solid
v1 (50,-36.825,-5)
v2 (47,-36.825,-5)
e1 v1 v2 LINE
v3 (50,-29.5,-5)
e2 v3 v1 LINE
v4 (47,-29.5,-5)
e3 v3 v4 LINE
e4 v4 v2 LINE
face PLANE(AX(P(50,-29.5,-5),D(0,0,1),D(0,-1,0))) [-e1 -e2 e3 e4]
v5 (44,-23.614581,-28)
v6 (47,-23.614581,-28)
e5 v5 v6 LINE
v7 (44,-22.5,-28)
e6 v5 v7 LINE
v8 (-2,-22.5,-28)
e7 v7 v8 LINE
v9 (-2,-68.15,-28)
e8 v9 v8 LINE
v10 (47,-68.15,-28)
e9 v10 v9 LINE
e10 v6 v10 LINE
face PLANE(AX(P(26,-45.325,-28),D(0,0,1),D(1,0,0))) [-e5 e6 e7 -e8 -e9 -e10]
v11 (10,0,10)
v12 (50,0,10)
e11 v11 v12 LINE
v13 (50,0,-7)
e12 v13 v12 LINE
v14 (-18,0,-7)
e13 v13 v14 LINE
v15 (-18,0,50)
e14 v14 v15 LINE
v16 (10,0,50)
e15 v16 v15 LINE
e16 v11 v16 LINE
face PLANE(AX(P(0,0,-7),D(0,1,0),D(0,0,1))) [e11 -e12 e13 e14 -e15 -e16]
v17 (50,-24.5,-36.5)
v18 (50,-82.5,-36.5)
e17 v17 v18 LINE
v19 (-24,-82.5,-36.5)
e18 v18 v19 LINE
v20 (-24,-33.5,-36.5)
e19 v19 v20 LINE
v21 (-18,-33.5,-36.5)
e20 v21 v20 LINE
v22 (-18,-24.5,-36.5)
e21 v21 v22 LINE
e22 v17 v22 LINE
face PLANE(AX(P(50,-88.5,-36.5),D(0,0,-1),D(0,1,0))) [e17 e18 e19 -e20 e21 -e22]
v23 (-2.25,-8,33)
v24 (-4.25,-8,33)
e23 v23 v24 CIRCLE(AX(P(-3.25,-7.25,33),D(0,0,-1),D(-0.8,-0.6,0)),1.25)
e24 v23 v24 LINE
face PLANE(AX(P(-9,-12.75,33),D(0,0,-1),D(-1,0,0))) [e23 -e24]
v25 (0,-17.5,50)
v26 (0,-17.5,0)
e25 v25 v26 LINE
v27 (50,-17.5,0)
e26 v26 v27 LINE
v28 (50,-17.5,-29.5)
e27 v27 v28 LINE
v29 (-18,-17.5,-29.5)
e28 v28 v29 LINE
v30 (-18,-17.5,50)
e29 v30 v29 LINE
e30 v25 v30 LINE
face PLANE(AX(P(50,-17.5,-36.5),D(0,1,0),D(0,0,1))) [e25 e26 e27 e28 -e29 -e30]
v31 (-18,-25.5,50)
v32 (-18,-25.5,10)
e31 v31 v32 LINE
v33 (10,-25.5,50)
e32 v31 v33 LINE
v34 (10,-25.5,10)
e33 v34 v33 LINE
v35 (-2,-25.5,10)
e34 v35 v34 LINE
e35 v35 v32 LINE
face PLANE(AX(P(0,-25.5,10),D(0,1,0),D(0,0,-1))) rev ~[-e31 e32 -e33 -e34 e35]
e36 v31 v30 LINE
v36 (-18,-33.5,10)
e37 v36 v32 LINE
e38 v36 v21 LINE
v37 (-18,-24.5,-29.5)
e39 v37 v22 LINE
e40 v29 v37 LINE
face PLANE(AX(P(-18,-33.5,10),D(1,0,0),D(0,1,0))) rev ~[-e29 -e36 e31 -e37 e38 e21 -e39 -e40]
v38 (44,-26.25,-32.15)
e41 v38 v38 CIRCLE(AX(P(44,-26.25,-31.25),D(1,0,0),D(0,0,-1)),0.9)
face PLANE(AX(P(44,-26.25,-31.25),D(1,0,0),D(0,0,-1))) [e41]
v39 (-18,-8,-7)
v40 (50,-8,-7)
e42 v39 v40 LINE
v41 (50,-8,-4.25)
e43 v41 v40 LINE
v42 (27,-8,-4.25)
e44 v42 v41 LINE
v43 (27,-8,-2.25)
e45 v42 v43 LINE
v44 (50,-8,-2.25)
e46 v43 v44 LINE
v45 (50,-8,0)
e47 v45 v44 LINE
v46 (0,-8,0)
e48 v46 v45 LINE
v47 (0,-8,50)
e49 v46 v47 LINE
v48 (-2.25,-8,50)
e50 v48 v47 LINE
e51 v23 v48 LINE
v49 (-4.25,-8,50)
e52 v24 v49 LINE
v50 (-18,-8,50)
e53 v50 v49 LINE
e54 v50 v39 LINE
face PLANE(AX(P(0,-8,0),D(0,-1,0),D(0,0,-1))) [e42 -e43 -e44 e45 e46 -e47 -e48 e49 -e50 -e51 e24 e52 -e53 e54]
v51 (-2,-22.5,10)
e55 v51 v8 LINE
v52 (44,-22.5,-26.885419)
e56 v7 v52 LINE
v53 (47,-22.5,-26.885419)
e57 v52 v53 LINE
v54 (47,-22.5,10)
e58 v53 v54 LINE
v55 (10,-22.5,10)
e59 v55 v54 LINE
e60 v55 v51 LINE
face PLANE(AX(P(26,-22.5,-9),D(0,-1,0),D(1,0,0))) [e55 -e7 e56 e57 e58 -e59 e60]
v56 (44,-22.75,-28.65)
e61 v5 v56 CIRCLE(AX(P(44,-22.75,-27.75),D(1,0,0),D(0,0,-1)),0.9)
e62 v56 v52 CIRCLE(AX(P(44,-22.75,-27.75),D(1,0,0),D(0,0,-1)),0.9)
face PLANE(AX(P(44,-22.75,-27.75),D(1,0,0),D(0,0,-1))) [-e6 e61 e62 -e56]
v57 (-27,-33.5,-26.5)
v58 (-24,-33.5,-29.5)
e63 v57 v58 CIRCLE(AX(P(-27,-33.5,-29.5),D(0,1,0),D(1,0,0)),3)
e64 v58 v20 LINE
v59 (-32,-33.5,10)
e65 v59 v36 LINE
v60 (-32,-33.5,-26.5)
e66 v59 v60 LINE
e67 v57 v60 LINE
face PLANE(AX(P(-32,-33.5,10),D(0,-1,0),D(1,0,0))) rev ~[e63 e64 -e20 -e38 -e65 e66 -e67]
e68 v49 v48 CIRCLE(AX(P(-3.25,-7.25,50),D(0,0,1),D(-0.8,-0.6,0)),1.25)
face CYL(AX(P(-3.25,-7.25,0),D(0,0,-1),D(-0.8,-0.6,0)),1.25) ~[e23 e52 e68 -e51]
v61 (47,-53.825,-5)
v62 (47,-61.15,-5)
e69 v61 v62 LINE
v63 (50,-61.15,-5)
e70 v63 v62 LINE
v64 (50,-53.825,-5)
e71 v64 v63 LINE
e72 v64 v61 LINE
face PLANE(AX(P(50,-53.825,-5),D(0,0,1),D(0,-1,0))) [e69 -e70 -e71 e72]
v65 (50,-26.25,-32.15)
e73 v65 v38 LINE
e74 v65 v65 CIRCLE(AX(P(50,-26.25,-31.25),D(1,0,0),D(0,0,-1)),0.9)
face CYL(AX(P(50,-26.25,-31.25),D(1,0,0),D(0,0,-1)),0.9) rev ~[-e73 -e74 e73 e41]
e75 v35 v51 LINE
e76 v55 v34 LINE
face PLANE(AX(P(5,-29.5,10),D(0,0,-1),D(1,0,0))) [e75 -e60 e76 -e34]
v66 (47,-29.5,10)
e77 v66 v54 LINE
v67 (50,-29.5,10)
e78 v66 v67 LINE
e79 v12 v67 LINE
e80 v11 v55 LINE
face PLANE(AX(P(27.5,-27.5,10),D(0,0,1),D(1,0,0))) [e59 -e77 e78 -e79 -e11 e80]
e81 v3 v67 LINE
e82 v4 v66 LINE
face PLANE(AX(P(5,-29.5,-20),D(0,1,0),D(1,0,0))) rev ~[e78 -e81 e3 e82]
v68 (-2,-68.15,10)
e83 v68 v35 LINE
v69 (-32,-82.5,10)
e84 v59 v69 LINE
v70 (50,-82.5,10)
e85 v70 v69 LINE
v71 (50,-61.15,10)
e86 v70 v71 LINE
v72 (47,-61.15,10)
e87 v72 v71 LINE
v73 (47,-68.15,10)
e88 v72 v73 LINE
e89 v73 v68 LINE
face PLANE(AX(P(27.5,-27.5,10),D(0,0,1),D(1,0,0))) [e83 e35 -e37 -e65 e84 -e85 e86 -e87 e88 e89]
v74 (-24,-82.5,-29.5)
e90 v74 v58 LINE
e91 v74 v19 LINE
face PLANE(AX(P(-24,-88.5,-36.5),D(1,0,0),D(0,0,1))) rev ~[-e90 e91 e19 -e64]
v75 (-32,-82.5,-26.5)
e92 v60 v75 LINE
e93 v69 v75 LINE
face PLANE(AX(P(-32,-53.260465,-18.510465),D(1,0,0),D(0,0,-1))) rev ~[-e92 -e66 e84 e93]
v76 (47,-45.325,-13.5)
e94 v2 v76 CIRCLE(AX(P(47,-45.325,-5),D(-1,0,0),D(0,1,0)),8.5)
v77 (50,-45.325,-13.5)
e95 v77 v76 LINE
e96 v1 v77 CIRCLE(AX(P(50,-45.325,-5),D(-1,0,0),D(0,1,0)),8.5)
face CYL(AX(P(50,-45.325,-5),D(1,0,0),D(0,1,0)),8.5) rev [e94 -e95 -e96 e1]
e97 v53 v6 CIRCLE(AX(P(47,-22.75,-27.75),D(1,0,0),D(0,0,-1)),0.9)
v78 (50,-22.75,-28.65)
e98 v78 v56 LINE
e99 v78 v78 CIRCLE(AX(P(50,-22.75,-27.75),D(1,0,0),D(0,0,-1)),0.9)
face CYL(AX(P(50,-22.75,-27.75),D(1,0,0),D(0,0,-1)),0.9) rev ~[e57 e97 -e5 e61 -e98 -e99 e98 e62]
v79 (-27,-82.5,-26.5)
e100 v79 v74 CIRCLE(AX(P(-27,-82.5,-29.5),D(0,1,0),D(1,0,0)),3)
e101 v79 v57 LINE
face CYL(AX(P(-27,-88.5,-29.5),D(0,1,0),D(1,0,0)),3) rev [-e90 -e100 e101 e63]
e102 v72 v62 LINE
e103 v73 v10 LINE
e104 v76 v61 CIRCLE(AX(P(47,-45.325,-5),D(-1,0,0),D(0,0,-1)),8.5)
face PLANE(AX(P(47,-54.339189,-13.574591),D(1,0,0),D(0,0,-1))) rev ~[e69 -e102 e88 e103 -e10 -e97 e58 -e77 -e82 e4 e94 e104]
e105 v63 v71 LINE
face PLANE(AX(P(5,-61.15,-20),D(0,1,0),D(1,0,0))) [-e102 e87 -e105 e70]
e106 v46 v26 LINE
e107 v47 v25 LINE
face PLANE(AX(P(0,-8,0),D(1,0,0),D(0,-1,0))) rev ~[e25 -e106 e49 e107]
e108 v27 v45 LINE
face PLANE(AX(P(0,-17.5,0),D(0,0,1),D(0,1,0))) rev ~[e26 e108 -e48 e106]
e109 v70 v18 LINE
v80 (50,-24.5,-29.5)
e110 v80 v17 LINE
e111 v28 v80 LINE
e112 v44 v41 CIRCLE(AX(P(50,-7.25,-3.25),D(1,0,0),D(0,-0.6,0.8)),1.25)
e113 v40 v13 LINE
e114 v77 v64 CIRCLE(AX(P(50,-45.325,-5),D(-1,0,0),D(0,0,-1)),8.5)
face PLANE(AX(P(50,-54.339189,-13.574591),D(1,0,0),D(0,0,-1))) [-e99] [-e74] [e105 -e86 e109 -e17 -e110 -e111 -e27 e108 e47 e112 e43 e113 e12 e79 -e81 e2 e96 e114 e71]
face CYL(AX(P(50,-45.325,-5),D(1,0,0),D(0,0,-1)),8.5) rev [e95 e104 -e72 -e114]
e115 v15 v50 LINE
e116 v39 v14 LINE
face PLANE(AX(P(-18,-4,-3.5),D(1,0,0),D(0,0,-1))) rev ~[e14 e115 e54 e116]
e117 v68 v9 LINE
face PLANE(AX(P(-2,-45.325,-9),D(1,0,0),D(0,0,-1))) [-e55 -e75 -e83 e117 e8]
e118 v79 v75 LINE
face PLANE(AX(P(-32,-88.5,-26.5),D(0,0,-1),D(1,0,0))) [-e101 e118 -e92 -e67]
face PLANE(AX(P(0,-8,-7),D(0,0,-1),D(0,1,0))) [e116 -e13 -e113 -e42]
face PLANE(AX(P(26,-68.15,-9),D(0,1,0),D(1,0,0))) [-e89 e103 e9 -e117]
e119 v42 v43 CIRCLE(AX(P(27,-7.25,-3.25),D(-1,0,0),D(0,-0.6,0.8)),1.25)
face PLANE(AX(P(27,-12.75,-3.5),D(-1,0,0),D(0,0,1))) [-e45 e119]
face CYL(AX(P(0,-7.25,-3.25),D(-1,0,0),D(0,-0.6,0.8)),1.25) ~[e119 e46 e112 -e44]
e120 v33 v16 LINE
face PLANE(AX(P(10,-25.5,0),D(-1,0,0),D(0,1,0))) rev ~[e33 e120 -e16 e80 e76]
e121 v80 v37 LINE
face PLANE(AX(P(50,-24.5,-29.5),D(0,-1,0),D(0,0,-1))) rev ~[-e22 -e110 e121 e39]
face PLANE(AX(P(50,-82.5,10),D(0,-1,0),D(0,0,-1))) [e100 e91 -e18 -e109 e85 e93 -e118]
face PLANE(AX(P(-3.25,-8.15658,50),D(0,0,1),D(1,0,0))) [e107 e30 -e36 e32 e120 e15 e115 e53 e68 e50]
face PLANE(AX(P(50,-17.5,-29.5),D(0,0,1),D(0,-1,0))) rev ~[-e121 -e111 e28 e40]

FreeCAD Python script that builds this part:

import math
import FreeCAD as App
import Part
import Sketcher

V = App.Vector


def edges_at(feature, points):
    """Names of the edges that pass closest to the given points."""
    edges = feature.Shape.Edges
    near = lambda p: min(range(len(edges)), key=lambda i: edges[i].distToShape(Part.Vertex(*p))[0])
    return sorted({f"Edge{near(p) + 1}" for p in points})


def add_polygon(sketch, points):
    """Adds a closed chain of lines whose ends are joined by coincident constraints."""
    first, n = sketch.GeometryCount, len(points)
    for a, b in zip(points, points[1:] + points[:1]):
        sketch.addGeometry(Part.LineSegment(App.Vector(*a, 0), App.Vector(*b, 0)), False)
    for i in range(n):
        sketch.addConstraint(Sketcher.Constraint("Coincident", first + i, 2, first + (i + 1) % n, 1))

doc = App.newDocument("Part")
body = doc.addObject("PartDesign::Body", "Body")

# Sketch on XY plane
sketch1 = body.newObject("Sketcher::SketchObject", "Sketch")
sketch1.AttachmentSupport = (doc.getObject("XY_Plane"), [""])
sketch1.MapMode = "FlatFace"
sketch1.addGeometry(Part.ArcOfCircle(Part.Circle(V(-3.2, -7.2, 0), V(0, 0, 1), 1.2), math.radians(-143), math.radians(-37)), False)
sketch1.addGeometry(Part.LineSegment(V(-2.2, -8, 0), V(0, -8, 0)), False)
sketch1.addGeometry(Part.LineSegment(V(0, -8, 0), V(0, -17.5, 0)), False)
sketch1.addGeometry(Part.LineSegment(V(0, -17.5, 0), V(-18, -17.5, 0)), False)
sketch1.addGeometry(Part.LineSegment(V(-18, -17.5, 0), V(-18, -25.5, 0)), False)
sketch1.addGeometry(Part.LineSegment(V(-18, -25.5, 0), V(10, -25.5, 0)), False)
sketch1.addGeometry(Part.LineSegment(V(10, -25.5, 0), V(10, 0, 0)), False)
sketch1.addGeometry(Part.LineSegment(V(10, 0, 0), V(-18, 0, 0)), False)
sketch1.addGeometry(Part.LineSegment(V(-18, 0, 0), V(-18, -8, 0)), False)
sketch1.addGeometry(Part.LineSegment(V(-18, -8, 0), V(-4.2, -8, 0)), False)
sketch1.addConstraint(Sketcher.Constraint("Coincident", 0, 2, 1, 1))
sketch1.addConstraint(Sketcher.Constraint("Coincident", 1, 2, 2, 1))
sketch1.addConstraint(Sketcher.Constraint("Coincident", 2, 2, 3, 1))
sketch1.addConstraint(Sketcher.Constraint("Coincident", 3, 2, 4, 1))
sketch1.addConstraint(Sketcher.Constraint("Coincident", 4, 2, 5, 1))
sketch1.addConstraint(Sketcher.Constraint("Coincident", 5, 2, 6, 1))
sketch1.addConstraint(Sketcher.Constraint("Coincident", 6, 2, 7, 1))
sketch1.addConstraint(Sketcher.Constraint("Coincident", 7, 2, 8, 1))
sketch1.addConstraint(Sketcher.Constraint("Coincident", 8, 2, 9, 1))
sketch1.addConstraint(Sketcher.Constraint("Coincident", 9, 2, 0, 1))
sketch1.addConstraint(Sketcher.Constraint("Horizontal", 1))
sketch1.addConstraint(Sketcher.Constraint("Vertical", 2))
sketch1.addConstraint(Sketcher.Constraint("Horizontal", 3))
sketch1.addConstraint(Sketcher.Constraint("Vertical", 4))
sketch1.addConstraint(Sketcher.Constraint("Horizontal", 5))
sketch1.addConstraint(Sketcher.Constraint("Vertical", 6))
sketch1.addConstraint(Sketcher.Constraint("Horizontal", 7))
sketch1.addConstraint(Sketcher.Constraint("Vertical", 8))
sketch1.addConstraint(Sketcher.Constraint("Horizontal", 9))
sketch1.addConstraint(Sketcher.Constraint("PointOnObject", 1, 2, -2))
sketch1.addConstraint(Sketcher.Constraint("PointOnObject", 6, 2, -1))
sketch1.addConstraint(Sketcher.Constraint("Horizontal", 1, 2, 8, 2))
sketch1.addConstraint(Sketcher.Constraint("Vertical", 4, 2, 7, 2))
sketch1.addConstraint(Sketcher.Constraint("Equal", 4, 8))
sketch1.addConstraint(Sketcher.Constraint("DistanceX", 3, 2, 3, 1, 18.0))
sketch1.addConstraint(Sketcher.Constraint("DistanceX", 5, 1, 5, 2, 28.0))
sketch1.addConstraint(Sketcher.Constraint("DistanceY", 4, 2, 4, 1, 8.0))
sketch1.addConstraint(Sketcher.Constraint("Radius", 0, 1.25))
sketch1.addConstraint(Sketcher.Constraint("DistanceY", 2, 2, 2, 1, 9.5))
sketch1.addConstraint(Sketcher.Constraint("DistanceX", 0, 3, 0, 2, 1.0))
sketch1.addConstraint(Sketcher.Constraint("DistanceX", 1, 1, 1, 2, 2.25))
pad1 = body.newObject("PartDesign::Pad", "Pad")
pad1.Profile = sketch1
pad1.Length = 50

# Sketch on YZ plane
sketch2 = body.newObject("Sketcher::SketchObject", "Sketch001")
sketch2.AttachmentSupport = (doc.getObject("YZ_Plane"), [""])
sketch2.MapMode = "FlatFace"
sketch2.addGeometry(Part.LineSegment(V(0, -7, 0), V(0, 10, 0)), False)
sketch2.addGeometry(Part.LineSegment(V(0, 10, 0), V(-25.5, 10, 0)), False)
sketch2.addGeometry(Part.LineSegment(V(-25.5, 10, 0), V(-25.5, -7, 0)), False)
sketch2.addGeometry(Part.LineSegment(V(-25.5, -7, 0), V(-17.5, -7, 0)), False)
sketch2.addGeometry(Part.LineSegment(V(-17.5, -7, 0), V(-17.5, 0, 0)), False)
sketch2.addGeometry(Part.LineSegment(V(-17.5, 0, 0), V(-8, 0, 0)), False)
sketch2.addGeometry(Part.LineSegment(V(-8, 0, 0), V(-8, -2.2, 0)), False)
sketch2.addGeometry(Part.ArcOfCircle(Part.Circle(V(-7.2, -3.2, 0), V(0, 0, 1), 1.2), math.radians(127), math.radians(233)), False)
sketch2.addGeometry(Part.LineSegment(V(-8, -4.2, 0), V(-8, -7, 0)), False)
sketch2.addGeometry(Part.LineSegment(V(-8, -7, 0), V(0, -7, 0)), False)
sketch2.addConstraint(Sketcher.Constraint("Coincident", 0, 2, 1, 1))
sketch2.addConstraint(Sketcher.Constraint("Coincident", 1, 2, 2, 1))
sketch2.addConstraint(Sketcher.Constraint("Coincident", 2, 2, 3, 1))
sketch2.addConstraint(Sketcher.Constraint("Coincident", 3, 2, 4, 1))
sketch2.addConstraint(Sketcher.Constraint("Coincident", 4, 2, 5, 1))
sketch2.addConstraint(Sketcher.Constraint("Coincident", 5, 2, 6, 1))
sketch2.addConstraint(Sketcher.Constraint("Coincident", 6, 2, 7, 1))
sketch2.addConstraint(Sketcher.Constraint("Coincident", 7, 2, 8, 1))
sketch2.addConstraint(Sketcher.Constraint("Coincident", 8, 2, 9, 1))
sketch2.addConstraint(Sketcher.Constraint("Coincident", 9, 2, 0, 1))
sketch2.addConstraint(Sketcher.Constraint("Vertical", 0))
sketch2.addConstraint(Sketcher.Constraint("Horizontal", 1))
sketch2.addConstraint(Sketcher.Constraint("Vertical", 2))
sketch2.addConstraint(Sketcher.Constraint("Horizontal", 3))
sketch2.addConstraint(Sketcher.Constraint("Vertical", 4))
sketch2.addConstraint(Sketcher.Constraint("Horizontal", 5))
sketch2.addConstraint(Sketcher.Constraint("Vertical", 6))
sketch2.addConstraint(Sketcher.Constraint("Vertical", 8))
sketch2.addConstraint(Sketcher.Constraint("Horizontal", 9))
sketch2.addConstraint(Sketcher.Constraint("PointOnObject", 0, 2, -2))
sketch2.addConstraint(Sketcher.Constraint("PointOnObject", 4, 2, -1))
sketch2.addConstraint(Sketcher.Constraint("Horizontal", 3, 2, 8, 2))
sketch2.addConstraint(Sketcher.Constraint("Vertical", 6, 2, 7, 2))
sketch2.addConstraint(Sketcher.Constraint("Equal", 3, 9))
sketch2.addConstraint(Sketcher.Constraint("DistanceX", 3, 1, 3, 2, 8.0))
sketch2.addConstraint(Sketcher.Constraint("DistanceY", 0, 1, 0, 2, 17.0))
sketch2.addConstraint(Sketcher.Constraint("DistanceY", 4, 1, 4, 2, 7.0))
sketch2.addConstraint(Sketcher.Constraint("Radius", 7, 1.25))
sketch2.addConstraint(Sketcher.Constraint("DistanceX", 1, 2, 1, 1, 25.5))
sketch2.addConstraint(Sketcher.Constraint("DistanceY", 7, 3, 6, 2, 1.0))
sketch2.addConstraint(Sketcher.Constraint("DistanceY", 6, 2, 6, 1, 2.25))
pad2 = body.newObject("PartDesign::Pad", "Pad001")
pad2.Profile = sketch2
pad2.Length = 50

# Sketch on YZ plane
sketch3 = body.newObject("Sketcher::SketchObject", "Sketch002")
sketch3.AttachmentSupport = (doc.getObject("YZ_Plane"), [""])
sketch3.MapMode = "FlatFace"
add_polygon(sketch3, [(0, -7), (0, 0), (-8, 0), (-8, -7)])  # lines 0-3
add_polygon(sketch3, [(-18, 0), (-26, 0), (-26, -7), (-18, -7)])  # lines 4-7
sketch3.addConstraint(Sketcher.Constraint("Vertical", 0))
sketch3.addConstraint(Sketcher.Constraint("Horizontal", 1))
sketch3.addConstraint(Sketcher.Constraint("Vertical", 2))
sketch3.addConstraint(Sketcher.Constraint("Horizontal", 3))
sketch3.addConstraint(Sketcher.Constraint("Horizontal", 4))
sketch3.addConstraint(Sketcher.Constraint("Vertical", 5))
sketch3.addConstraint(Sketcher.Constraint("Horizontal", 6))
sketch3.addConstraint(Sketcher.Constraint("Vertical", 7))
sketch3.addConstraint(Sketcher.Constraint("Coincident", 0, 2, -1, 1))
sketch3.addConstraint(Sketcher.Constraint("PointOnObject", 4, 2, -1))
sketch3.addConstraint(Sketcher.Constraint("Horizontal", 3, 2, 5, 2))
sketch3.addConstraint(Sketcher.Constraint("Equal", 3, 4))
sketch3.addConstraint(Sketcher.Constraint("DistanceX", 1, 2, 1, 1, 8.0))
sketch3.addConstraint(Sketcher.Constraint("DistanceY", 0, 1, 0, 2, 7.0))
sketch3.addConstraint(Sketcher.Constraint("DistanceX", 4, 2, -1, 1, 25.5))
pad3 = body.newObject("PartDesign::Pad", "Pad002")
pad3.Profile = sketch3
pad3.Length = 18
pad3.Reversed = True

# Sketch on YZ plane
sketch4 = body.newObject("Sketcher::SketchObject", "Sketch003")
sketch4.AttachmentSupport = (doc.getObject("YZ_Plane"), [""])
sketch4.MapMode = "FlatFace"
sketch4.AttachmentOffset = App.Placement(V(0, 0, 50), App.Rotation())
add_polygon(sketch4, [(-18, -36), (-18, 10), (-88, 10), (-88, -36)])  # lines 0-3
sketch4.addConstraint(Sketcher.Constraint("Vertical", 0))
sketch4.addConstraint(Sketcher.Constraint("Horizontal", 1))
sketch4.addConstraint(Sketcher.Constraint("Vertical", 2))
sketch4.addConstraint(Sketcher.Constraint("Horizontal", 3))
sketch4.addConstraint(Sketcher.Constraint("DistanceX", 1, 2, 1, 1, 71.0))
sketch4.addConstraint(Sketcher.Constraint("DistanceY", 0, 1, 0, 2, 46.5))
sketch4.addConstraint(Sketcher.Constraint("DistanceY", -1, 1, 0, 2, 10.0))
sketch4.addConstraint(Sketcher.Constraint("DistanceX", 0, 2, -1, 1, 17.5))
pad4 = body.newObject("PartDesign::Pad", "Pad003")
pad4.Profile = sketch4
pad4.Length = 82
pad4.Reversed = True
doc.recompute()

fillet = body.newObject("PartDesign::Fillet", "Fillet")
fillet.Base = (pad4, edges_at(pad4, [(-32, -17.5, -13.25), (-32, -53, -36.5), (9, -17.5, -36.5)]))
fillet.Radius = 5

# Sketch on XZ plane
sketch5 = body.newObject("Sketcher::SketchObject", "Sketch004")
sketch5.AttachmentSupport = (doc.getObject("XZ_Plane"), [""])
sketch5.MapMode = "FlatFace"
sketch5.AttachmentOffset = App.Placement(V(0, 0, 88.5), App.Rotation())
add_polygon(sketch5, [(1, 10), (1, -20), (50, -20), (50, 10)])  # lines 0-3
sketch5.addConstraint(Sketcher.Constraint("Vertical", 0))
sketch5.addConstraint(Sketcher.Constraint("Horizontal", 1))
sketch5.addConstraint(Sketcher.Constraint("Vertical", 2))
sketch5.addConstraint(Sketcher.Constraint("Horizontal", 3))
sketch5.addConstraint(Sketcher.Constraint("DistanceX", 1, 1, 1, 2, 49.0))
sketch5.addConstraint(Sketcher.Constraint("DistanceY", 0, 2, 0, 1, 29.5))
sketch5.addConstraint(Sketcher.Constraint("DistanceX", -1, 1, 0, 2, 1.0))
sketch5.addConstraint(Sketcher.Constraint("DistanceY", -1, 1, 2, 2, 10.0))
pocket1 = body.newObject("PartDesign::Pocket", "Pocket")
pocket1.Profile = sketch5
pocket1.Length = 63

# Sketch on YZ plane
sketch6 = body.newObject("Sketcher::SketchObject", "Sketch005")
sketch6.AttachmentSupport = (doc.getObject("YZ_Plane"), [""])
sketch6.MapMode = "FlatFace"
sketch6.AttachmentOffset = App.Placement(V(0, 0, 50), App.Rotation())
add_polygon(sketch6, [(-26, 10), (-36, 10), (-36, -20), (-26, -20)])  # lines 0-3
add_polygon(sketch6, [(-78, 10), (-88, 10), (-88, -20), (-78, -20)])  # lines 4-7
sketch6.addConstraint(Sketcher.Constraint("Horizontal", 0))
sketch6.addConstraint(Sketcher.Constraint("Vertical", 1))
sketch6.addConstraint(Sketcher.Constraint("Horizontal", 2))
sketch6.addConstraint(Sketcher.Constraint("Vertical", 3))
sketch6.addConstraint(Sketcher.Constraint("Horizontal", 4))
sketch6.addConstraint(Sketcher.Constraint("Vertical", 5))
sketch6.addConstraint(Sketcher.Constraint("Horizontal", 6))
sketch6.addConstraint(Sketcher.Constraint("Vertical", 7))
sketch6.addConstraint(Sketcher.Constraint("Horizontal", 3, 2, 4, 2))
sketch6.addConstraint(Sketcher.Constraint("Horizontal", 2, 2, 5, 2))
sketch6.addConstraint(Sketcher.Constraint("Equal", 2, 4))
sketch6.addConstraint(Sketcher.Constraint("DistanceX", 0, 2, 0, 1, 11.0))
sketch6.addConstraint(Sketcher.Constraint("DistanceY", 1, 2, 1, 1, 29.5))
sketch6.addConstraint(Sketcher.Constraint("DistanceY", -1, 1, 0, 2, 10.0))
sketch6.addConstraint(Sketcher.Constraint("DistanceX", 4, 2, 0, 2, 52.0))
sketch6.addConstraint(Sketcher.Constraint("DistanceX", 0, 2, -1, 1, 36.5))
pad5 = body.newObject("PartDesign::Pad", "Pad004")
pad5.Profile = sketch6
pad5.Length = 49
pad5.Reversed = True

# Sketch on XY plane
sketch7 = body.newObject("Sketcher::SketchObject", "Sketch006")
sketch7.AttachmentSupport = (doc.getObject("XY_Plane"), [""])
sketch7.MapMode = "FlatFace"
sketch7.AttachmentOffset = App.Placement(V(0, 0, 10), App.Rotation())
add_polygon(sketch7, [(27, -36), (1, -36), (1, -78), (27, -78), (27, -88), (50, -88), (50, -26), (27, -26)])  # lines 0-7
sketch7.addConstraint(Sketcher.Constraint("Horizontal", 0))
sketch7.addConstraint(Sketcher.Constraint("Vertical", 1))
sketch7.addConstraint(Sketcher.Constraint("Horizontal", 2))
sketch7.addConstraint(Sketcher.Constraint("Vertical", 3))
sketch7.addConstraint(Sketcher.Constraint("Horizontal", 4))
sketch7.addConstraint(Sketcher.Constraint("Vertical", 5))
sketch7.addConstraint(Sketcher.Constraint("Horizontal", 6))
sketch7.addConstraint(Sketcher.Constraint("Vertical", 7))
sketch7.addConstraint(Sketcher.Constraint("Vertical", 3, 2, 6, 2))
sketch7.addConstraint(Sketcher.Constraint("DistanceX", 0, 2, 0, 1, 26.0))
sketch7.addConstraint(Sketcher.Constraint("DistanceX", 4, 1, 4, 2, 23.0))
sketch7.addConstraint(Sketcher.Constraint("DistanceY", 1, 2, 1, 1, 41.0))
sketch7.addConstraint(Sketcher.Constraint("DistanceY", 3, 2, 3, 1, 11.0))
sketch7.addConstraint(Sketcher.Constraint("DistanceY", 5, 1, 5, 2, 62.0))
sketch7.addConstraint(Sketcher.Constraint("DistanceX", -1, 1, 0, 2, 1.0))
sketch7.addConstraint(Sketcher.Constraint("DistanceY", 0, 2, -1, 1, 36.5))
pocket2 = body.newObject("PartDesign::Pocket", "Pocket001")
pocket2.Profile = sketch7
pocket2.Length = 29.5

# Sketch on YZ plane
sketch8 = body.newObject("Sketcher::SketchObject", "Sketch007")
sketch8.AttachmentSupport = (doc.getObject("YZ_Plane"), [""])
sketch8.MapMode = "FlatFace"
sketch8.AttachmentOffset = App.Placement(V(0, 0, 27), App.Rotation())
sketch8.addGeometry(Part.Circle(V(-81.5, -4.2, 0), V(0, 0, 1), 1.8), False)
sketch8.addGeometry(Part.Circle(V(-81.5, -14.2, 0), V(0, 0, 1), 1.8), False)
sketch8.addGeometry(Part.Circle(V(-32.5, -14.2, 0), V(0, 0, 1), 1.8), False)
sketch8.addGeometry(Part.Circle(V(-32.5, -4.2, 0), V(0, 0, 1), 1.8), False)
sketch8.addConstraint(Sketcher.Constraint("Equal", 0, 1))
sketch8.addConstraint(Sketcher.Constraint("Equal", 1, 2))
sketch8.addConstraint(Sketcher.Constraint("Equal", 2, 3))
sketch8.addConstraint(Sketcher.Constraint("Horizontal", 1, 3, 2, 3))
sketch8.addConstraint(Sketcher.Constraint("Horizontal", 0, 3, 3, 3))
sketch8.addConstraint(Sketcher.Constraint("Vertical", 0, 3, 1, 3))
sketch8.addConstraint(Sketcher.Constraint("Vertical", 2, 3, 3, 3))
sketch8.addConstraint(Sketcher.Constraint("Diameter", 0, 3.5))
sketch8.addConstraint(Sketcher.Constraint("DistanceY", 1, 3, 0, 3, 10.0))
sketch8.addConstraint(Sketcher.Constraint("DistanceX", 1, 3, 2, 3, 49.0))
sketch8.addConstraint(Sketcher.Constraint("DistanceX", 0, 3, -1, 1, 81.5))
sketch8.addConstraint(Sketcher.Constraint("DistanceY", 0, 3, -1, 1, 4.25))
pocket3 = body.newObject("PartDesign::Pocket", "Pocket002")
pocket3.Profile = sketch8
pocket3.Length = 5

# Sketch on YZ plane
sketch9 = body.newObject("Sketcher::SketchObject", "Sketch008")
sketch9.AttachmentSupport = (doc.getObject("YZ_Plane"), [""])
sketch9.MapMode = "FlatFace"
sketch9.AttachmentOffset = App.Placement(V(0, 0, 27), App.Rotation())
sketch9.addGeometry(Part.Circle(V(-81.5, -4.2, 0), V(0, 0, 1), 0.8), False)
sketch9.addGeometry(Part.Circle(V(-81.5, -14.2, 0), V(0, 0, 1), 0.8), False)
sketch9.addGeometry(Part.Circle(V(-32.5, -14.2, 0), V(0, 0, 1), 0.8), False)
sketch9.addGeometry(Part.Circle(V(-32.5, -4.2, 0), V(0, 0, 1), 0.8), False)
sketch9.addConstraint(Sketcher.Constraint("Equal", 0, 1))
sketch9.addConstraint(Sketcher.Constraint("Equal", 1, 2))
sketch9.addConstraint(Sketcher.Constraint("Equal", 2, 3))
sketch9.addConstraint(Sketcher.Constraint("Horizontal", 1, 3, 2, 3))
sketch9.addConstraint(Sketcher.Constraint("Horizontal", 0, 3, 3, 3))
sketch9.addConstraint(Sketcher.Constraint("Vertical", 0, 3, 1, 3))
sketch9.addConstraint(Sketcher.Constraint("Vertical", 2, 3, 3, 3))
sketch9.addConstraint(Sketcher.Constraint("Diameter", 0, 1.5))
sketch9.addConstraint(Sketcher.Constraint("DistanceY", 1, 3, 0, 3, 10.0))
sketch9.addConstraint(Sketcher.Constraint("DistanceX", 1, 3, 2, 3, 49.0))
sketch9.addConstraint(Sketcher.Constraint("DistanceX", 0, 3, -1, 1, 81.5))
sketch9.addConstraint(Sketcher.Constraint("DistanceY", 0, 3, -1, 1, 4.25))
pocket4 = body.newObject("PartDesign::Pocket", "Pocket003")
pocket4.Profile = sketch9
pocket4.Length = 15

# Sketch on XY plane
sketch10 = body.newObject("Sketcher::SketchObject", "Sketch009")
sketch10.AttachmentSupport = (doc.getObject("XY_Plane"), [""])
sketch10.MapMode = "FlatFace"
sketch10.AttachmentOffset = App.Placement(V(0, 0, -7), App.Rotation())
add_polygon(sketch10, [(0, -8), (0, -18), (-18, -18), (-18, -8)])  # lines 0-3
sketch10.addConstraint(Sketcher.Constraint("Vertical", 0))
sketch10.addConstraint(Sketcher.Constraint("Horizontal", 1))
sketch10.addConstraint(Sketcher.Constraint("Vertical", 2))
sketch10.addConstraint(Sketcher.Constraint("Horizontal", 3))
sketch10.addConstraint(Sketcher.Constraint("PointOnObject", 0, 2, -2))
sketch10.addConstraint(Sketcher.Constraint("DistanceX", 1, 2, 1, 1, 18.0))
sketch10.addConstraint(Sketcher.Constraint("DistanceY", 0, 2, 0, 1, 9.5))
sketch10.addConstraint(Sketcher.Constraint("DistanceY", 2, 2, -1, 1, 8.0))
pocket5 = body.newObject("PartDesign::Pocket", "Pocket004")
pocket5.Profile = sketch10
pocket5.Length = 40
pocket5.Reversed = True

# Sketch on YZ plane
sketch11 = body.newObject("Sketcher::SketchObject", "Sketch010")
sketch11.AttachmentSupport = (doc.getObject("YZ_Plane"), [""])
sketch11.MapMode = "FlatFace"
sketch11.AttachmentOffset = App.Placement(V(0, 0, -18), App.Rotation())
add_polygon(sketch11, [(-8, -7), (-18, -7), (-18, 0), (-8, 0)])  # lines 0-3
sketch11.addConstraint(Sketcher.Constraint("Horizontal", 0))
sketch11.addConstraint(Sketcher.Constraint("Vertical", 1))
sketch11.addConstraint(Sketcher.Constraint("Horizontal", 2))
sketch11.addConstraint(Sketcher.Constraint("Vertical", 3))
sketch11.addConstraint(Sketcher.Constraint("PointOnObject", 1, 2, -1))
sketch11.addConstraint(Sketcher.Constraint("DistanceY", 1, 1, 1, 2, 7.0))
sketch11.addConstraint(Sketcher.Constraint("DistanceX", 0, 2, 0, 1, 9.5))
sketch11.addConstraint(Sketcher.Constraint("DistanceX", 2, 2, -1, 1, 8.0))
pocket6 = body.newObject("PartDesign::Pocket", "Pocket005")
pocket6.Profile = sketch11
pocket6.Length = 45
pocket6.Reversed = True

# Sketch on XY plane
sketch12 = body.newObject("Sketcher::SketchObject", "Sketch011")
sketch12.AttachmentSupport = (doc.getObject("XY_Plane"), [""])
sketch12.MapMode = "FlatFace"
sketch12.AttachmentOffset = App.Placement(V(0, 0, 10), App.Rotation())
add_polygon(sketch12, [(1, -26), (1, -36), (11, -36), (11, -26)])  # lines 0-3
sketch12.addConstraint(Sketcher.Constraint("Vertical", 0))
sketch12.addConstraint(Sketcher.Constraint("Horizontal", 1))
sketch12.addConstraint(Sketcher.Constraint("Vertical", 2))
sketch12.addConstraint(Sketcher.Constraint("Horizontal", 3))
sketch12.addConstraint(Sketcher.Constraint("Equal", 3, 0))
sketch12.addConstraint(Sketcher.Constraint("DistanceX", 1, 1, 1, 2, 10.0))
sketch12.addConstraint(Sketcher.Constraint("DistanceX", -1, 1, 0, 2, 1.0))
sketch12.addConstraint(Sketcher.Constraint("DistanceY", 0, 2, -1, 1, 36.5))
pocket7 = body.newObject("PartDesign::Pocket", "Pocket006")
pocket7.Profile = sketch12
pocket7.Length = 29.5

# Sketch on XY plane
sketch13 = body.newObject("Sketcher::SketchObject", "Sketch012")
sketch13.AttachmentSupport = (doc.getObject("XY_Plane"), [""])
sketch13.MapMode = "FlatFace"
sketch13.AttachmentOffset = App.Placement(V(0, 0, -19.5), App.Rotation())
add_polygon(sketch13, [(37, -34), (37, -88), (50, -88), (50, -34)])  # lines 0-3
sketch13.addConstraint(Sketcher.Constraint("Vertical", 0))
sketch13.addConstraint(Sketcher.Constraint("Horizontal", 1))
sketch13.addConstraint(Sketcher.Constraint("Vertical", 2))
sketch13.addConstraint(Sketcher.Constraint("Horizontal", 3))
sketch13.addConstraint(Sketcher.Constraint("DistanceX", 1, 1, 1, 2, 13.0))
sketch13.addConstraint(Sketcher.Constraint("DistanceY", 0, 2, 0, 1, 55.0))
sketch13.addConstraint(Sketcher.Constraint("DistanceX", -1, 1, 0, 2, 37.0))
sketch13.addConstraint(Sketcher.Constraint("DistanceY", 0, 2, -1, 1, 88.5))
pocket8 = body.newObject("PartDesign::Pocket", "Pocket007")
pocket8.Profile = sketch13
pocket8.Type = "ThroughAll"

# Sketch on XZ plane
sketch14 = body.newObject("Sketcher::SketchObject", "Sketch013")
sketch14.AttachmentSupport = (doc.getObject("XZ_Plane"), [""])
sketch14.MapMode = "FlatFace"
sketch14.AttachmentOffset = App.Placement(V(0, 0, 88.5), App.Rotation())
add_polygon(sketch14, [(-32, -26), (-32, -36), (-24, -36), (-24, -26)])  # lines 0-3
sketch14.addConstraint(Sketcher.Constraint("Vertical", 0))
sketch14.addConstraint(Sketcher.Constraint("Horizontal", 1))
sketch14.addConstraint(Sketcher.Constraint("Vertical", 2))
sketch14.addConstraint(Sketcher.Constraint("Horizontal", 3))
sketch14.addConstraint(Sketcher.Constraint("DistanceX", 1, 1, 1, 2, 8.0))
sketch14.addConstraint(Sketcher.Constraint("DistanceY", 0, 2, 0, 1, 10.0))
sketch14.addConstraint(Sketcher.Constraint("DistanceX", 0, 2, -1, 1, 32.0))
sketch14.addConstraint(Sketcher.Constraint("DistanceY", 0, 2, -1, 1, 36.5))
pocket9 = body.newObject("PartDesign::Pocket", "Pocket008")
pocket9.Profile = sketch14
pocket9.Type = "ThroughAll"

# Sketch on YZ plane
sketch15 = body.newObject("Sketcher::SketchObject", "Sketch014")
sketch15.AttachmentSupport = (doc.getObject("YZ_Plane"), [""])
sketch15.MapMode = "FlatFace"
sketch15.AttachmentOffset = App.Placement(V(0, 0, -32), App.Rotation())
add_polygon(sketch15, [(-18, -36), (-24, -36), (-24, -26), (-18, -26)])  # lines 0-3
sketch15.addConstraint(Sketcher.Constraint("Horizontal", 0))
sketch15.addConstraint(Sketcher.Constraint("Vertical", 1))
sketch15.addConstraint(Sketcher.Constraint("Horizontal", 2))
sketch15.addConstraint(Sketcher.Constraint("Vertical", 3))
sketch15.addConstraint(Sketcher.Constraint("DistanceX", 0, 2, 0, 1, 6.0))
sketch15.addConstraint(Sketcher.Constraint("DistanceY", 1, 1, 1, 2, 10.0))
sketch15.addConstraint(Sketcher.Constraint("DistanceX", 0, 2, -1, 1, 23.5))
sketch15.addConstraint(Sketcher.Constraint("DistanceY", 0, 2, -1, 1, 36.5))
pocket10 = body.newObject("PartDesign::Pocket", "Pocket009")
pocket10.Profile = sketch15
pocket10.Length = 14
pocket10.Reversed = True

# Sketch on XY plane
sketch16 = body.newObject("Sketcher::SketchObject", "Sketch015")
sketch16.AttachmentSupport = (doc.getObject("XY_Plane"), [""])
sketch16.MapMode = "FlatFace"
sketch16.AttachmentOffset = App.Placement(V(0, 0, -26.5), App.Rotation())
add_polygon(sketch16, [(-18, -18), (-18, -24), (-32, -24), (-32, -18)])  # lines 0-3
sketch16.addConstraint(Sketcher.Constraint("Vertical", 0))
sketch16.addConstraint(Sketcher.Constraint("Horizontal", 1))
sketch16.addConstraint(Sketcher.Constraint("Vertical", 2))
sketch16.addConstraint(Sketcher.Constraint("Horizontal", 3))
sketch16.addConstraint(Sketcher.Constraint("DistanceX", 1, 2, 1, 1, 14.0))
sketch16.addConstraint(Sketcher.Constraint("DistanceY", 0, 2, 0, 1, 6.0))
sketch16.addConstraint(Sketcher.Constraint("DistanceX", 0, 2, -1, 1, 18.0))
sketch16.addConstraint(Sketcher.Constraint("DistanceY", 0, 2, -1, 1, 23.5))
pocket11 = body.newObject("PartDesign::Pocket", "Pocket010")
pocket11.Profile = sketch16
pocket11.Type = "ThroughAll"
pocket11.Reversed = True
doc.recompute()

fillet2 = body.newObject("PartDesign::Fillet", "Fillet001")
fillet2.Base = (pocket11, edges_at(pocket11, [(-24, -56, -26.5), (-24, -23.5, -31.5), (-28, -23.5, -26.5)]))
fillet2.Radius = 3

# Sketch on XY plane
sketch17 = body.newObject("Sketcher::SketchObject", "Sketch016")
sketch17.AttachmentSupport = (doc.getObject("XY_Plane"), [""])
sketch17.MapMode = "FlatFace"
sketch17.AttachmentOffset = App.Placement(V(0, 0, 10), App.Rotation())
add_polygon(sketch17, [(1, -26), (1, -88), (50, -88), (50, -26)])  # lines 0-3
sketch17.addConstraint(Sketcher.Constraint("Vertical", 0))
sketch17.addConstraint(Sketcher.Constraint("Horizontal", 1))
sketch17.addConstraint(Sketcher.Constraint("Vertical", 2))
sketch17.addConstraint(Sketcher.Constraint("Horizontal", 3))
sketch17.addConstraint(Sketcher.Constraint("DistanceX", 1, 1, 1, 2, 49.0))
sketch17.addConstraint(Sketcher.Constraint("DistanceY", 0, 2, 0, 1, 62.0))
sketch17.addConstraint(Sketcher.Constraint("DistanceX", -1, 1, 0, 2, 1.0))
sketch17.addConstraint(Sketcher.Constraint("DistanceY", 0, 2, -1, 1, 88.5))
pad6 = body.newObject("PartDesign::Pad", "Pad005")
pad6.Profile = sketch17
pad6.Length = 46.5
pad6.Reversed = True

# Sketch on XY plane
sketch18 = body.newObject("Sketcher::SketchObject", "Sketch017")
sketch18.AttachmentSupport = (doc.getObject("XY_Plane"), [""])
sketch18.MapMode = "FlatFace"
sketch18.AttachmentOffset = App.Placement(V(0, 0, -20), App.Rotation())
add_polygon(sketch18, [(5, -26), (5, -88), (50, -88), (50, -26)])  # lines 0-3
sketch18.addConstraint(Sketcher.Constraint("Vertical", 0))
sketch18.addConstraint(Sketcher.Constraint("Horizontal", 1))
sketch18.addConstraint(Sketcher.Constraint("Vertical", 2))
sketch18.addConstraint(Sketcher.Constraint("Horizontal", 3))
sketch18.addConstraint(Sketcher.Constraint("DistanceX", 1, 1, 1, 2, 45.0))
sketch18.addConstraint(Sketcher.Constraint("DistanceY", 0, 2, 0, 1, 63.0))
sketch18.addConstraint(Sketcher.Constraint("DistanceX", -1, 1, 0, 2, 5.0))
sketch18.addConstraint(Sketcher.Constraint("DistanceY", 0, 2, -1, 1, 88.5))
pocket12 = body.newObject("PartDesign::Pocket", "Pocket011")
pocket12.Profile = sketch18
pocket12.Length = 30
pocket12.Reversed = True

# Sketch on XY plane
sketch19 = body.newObject("Sketcher::SketchObject", "Sketch018")
sketch19.AttachmentSupport = (doc.getObject("XY_Plane"), [""])
sketch19.MapMode = "FlatFace"
sketch19.AttachmentOffset = App.Placement(V(0, 0, -20), App.Rotation())
add_polygon(sketch19, [(5, -25.5), (5, -29.5), (50, -29.5), (50, -25.5)])  # lines 0-3
add_polygon(sketch19, [(5, -61.1), (5, -88.5), (50, -88.5), (50, -61.1)])  # lines 4-7
sketch19.addConstraint(Sketcher.Constraint("Vertical", 0))
sketch19.addConstraint(Sketcher.Constraint("Horizontal", 1))
sketch19.addConstraint(Sketcher.Constraint("Vertical", 2))
sketch19.addConstraint(Sketcher.Constraint("Horizontal", 3))
sketch19.addConstraint(Sketcher.Constraint("Vertical", 4))
sketch19.addConstraint(Sketcher.Constraint("Horizontal", 5))
sketch19.addConstraint(Sketcher.Constraint("Vertical", 6))
sketch19.addConstraint(Sketcher.Constraint("Horizontal", 7))
sketch19.addConstraint(Sketcher.Constraint("Vertical", 3, 2, 4, 2))
sketch19.addConstraint(Sketcher.Constraint("Vertical", 2, 2, 5, 2))
sketch19.addConstraint(Sketcher.Constraint("DistanceX", 1, 1, 1, 2, 45.0))
sketch19.addConstraint(Sketcher.Constraint("DistanceY", 0, 2, 0, 1, 4.0))
sketch19.addConstraint(Sketcher.Constraint("DistanceX", -1, 1, 0, 2, 5.0))
sketch19.addConstraint(Sketcher.Constraint("DistanceY", 4, 2, 0, 2, 59.0))
sketch19.addConstraint(Sketcher.Constraint("DistanceY", 4, 2, 4, 1, 27.35))
sketch19.addConstraint(Sketcher.Constraint("DistanceY", 0, 2, -1, 1, 29.5))
pad7 = body.newObject("PartDesign::Pad", "Pad006")
pad7.Profile = sketch19
pad7.Length = 30

# Sketch on YZ plane
sketch20 = body.newObject("Sketcher::SketchObject", "Sketch019")
sketch20.AttachmentSupport = (doc.getObject("YZ_Plane"), [""])
sketch20.MapMode = "FlatFace"
sketch20.AttachmentOffset = App.Placement(V(0, 0, 50), App.Rotation())
sketch20.addGeometry(Part.LineSegment(V(-61, -20, 0), V(-30, -20, 0)), False)
sketch20.addGeometry(Part.LineSegment(V(-30, -20, 0), V(-30, -5, 0)), False)
sketch20.addGeometry(Part.LineSegment(V(-30, -5, 0), V(-37, -5, 0)), False)
sketch20.addGeometry(Part.ArcOfCircle(Part.Circle(V(-45, -5, 0), V(0, 0, 1), 8), math.radians(-90), math.radians(0)), False)
sketch20.addGeometry(Part.ArcOfCircle(Part.Circle(V(-45, -5, 0), V(0, 0, 1), 8), math.radians(180), math.radians(270)), False)
sketch20.addGeometry(Part.LineSegment(V(-54, -5, 0), V(-61, -5, 0)), False)
sketch20.addGeometry(Part.LineSegment(V(-61, -5, 0), V(-61, -20, 0)), False)
sketch20.addConstraint(Sketcher.Constraint("Coincident", 0, 2, 1, 1))
sketch20.addConstraint(Sketcher.Constraint("Coincident", 1, 2, 2, 1))
sketch20.addConstraint(Sketcher.Constraint("Coincident", 2, 2, 3, 2))
sketch20.addConstraint(Sketcher.Constraint("Tangent", 3, 1, 4, 2))
sketch20.addConstraint(Sketcher.Constraint("Coincident", 4, 1, 5, 1))
sketch20.addConstraint(Sketcher.Constraint("Coincident", 5, 2, 6, 1))
sketch20.addConstraint(Sketcher.Constraint("Coincident", 6, 2, 0, 1))
sketch20.addConstraint(Sketcher.Constraint("Horizontal", 0))
sketch20.addConstraint(Sketcher.Constraint("Vertical", 1))
sketch20.addConstraint(Sketcher.Constraint("Horizontal", 2))
sketch20.addConstraint(Sketcher.Constraint("Horizontal", 5))
sketch20.addConstraint(Sketcher.Constraint("Vertical", 6))
sketch20.addConstraint(Sketcher.Constraint("Equal", 3, 4))
sketch20.addConstraint(Sketcher.Constraint("Horizontal", 4, 3, 1, 2))
sketch20.addConstraint(Sketcher.Constraint("Horizontal", 2, 2, 4, 1))
sketch20.addConstraint(Sketcher.Constraint("Vertical", 4, 3, 3, 1))
sketch20.addConstraint(Sketcher.Constraint("Equal", 2, 5))
sketch20.addConstraint(Sketcher.Constraint("Radius", 3, 8.5))
sketch20.addConstraint(Sketcher.Constraint("DistanceY", 1, 1, 1, 2, 15.0))
sketch20.addConstraint(Sketcher.Constraint("DistanceY", 3, 3, -1, 1, 5.0))
sketch20.addConstraint(Sketcher.Constraint("DistanceX", 0, 1, 0, 2, 31.65))
sketch20.addConstraint(Sketcher.Constraint("DistanceX", 0, 2, -1, 1, 29.5))
pad8 = body.newObject("PartDesign::Pad", "Pad007")
pad8.Profile = sketch20
pad8.Length = 3
pad8.Reversed = True

# Sketch on XY plane
sketch21 = body.newObject("Sketcher::SketchObject", "Sketch020")
sketch21.AttachmentSupport = (doc.getObject("XY_Plane"), [""])
sketch21.MapMode = "FlatFace"
sketch21.AttachmentOffset = App.Placement(V(0, 0, 10), App.Rotation())
add_polygon(sketch21, [(-32, -24), (-32, -34), (-18, -34), (-18, -24)])  # lines 0-3
sketch21.addConstraint(Sketcher.Constraint("Vertical", 0))
sketch21.addConstraint(Sketcher.Constraint("Horizontal", 1))
sketch21.addConstraint(Sketcher.Constraint("Vertical", 2))
sketch21.addConstraint(Sketcher.Constraint("Horizontal", 3))
sketch21.addConstraint(Sketcher.Constraint("DistanceX", 1, 1, 1, 2, 14.0))
sketch21.addConstraint(Sketcher.Constraint("DistanceY", 0, 2, 0, 1, 10.0))
sketch21.addConstraint(Sketcher.Constraint("DistanceX", 0, 2, -1, 1, 32.0))
sketch21.addConstraint(Sketcher.Constraint("DistanceY", 0, 2, -1, 1, 33.5))
pocket13 = body.newObject("PartDesign::Pocket", "Pocket012")
pocket13.Profile = sketch21
pocket13.Type = "ThroughAll"

# Sketch on XY plane
sketch22 = body.newObject("Sketcher::SketchObject", "Sketch021")
sketch22.AttachmentSupport = (doc.getObject("XY_Plane"), [""])
sketch22.MapMode = "FlatFace"
sketch22.AttachmentOffset = App.Placement(V(0, 0, -20), App.Rotation())
add_polygon(sketch22, [(5, -30), (5, -61), (47, -61), (47, -30)])  # lines 0-3
sketch22.addConstraint(Sketcher.Constraint("Vertical", 0))
sketch22.addConstraint(Sketcher.Constraint("Horizontal", 1))
sketch22.addConstraint(Sketcher.Constraint("Vertical", 2))
sketch22.addConstraint(Sketcher.Constraint("Horizontal", 3))
sketch22.addConstraint(Sketcher.Constraint("DistanceX", 1, 1, 1, 2, 42.0))
sketch22.addConstraint(Sketcher.Constraint("DistanceX", -1, 1, 0, 2, 5.0))
sketch22.addConstraint(Sketcher.Constraint("DistanceY", 0, 2, 0, 1, 31.65))
sketch22.addConstraint(Sketcher.Constraint("DistanceY", 2, 2, -1, 1, 29.5))
pocket14 = body.newObject("PartDesign::Pocket", "Pocket013")
pocket14.Profile = sketch22
pocket14.Length = 8

# Sketch on XZ plane
sketch23 = body.newObject("Sketcher::SketchObject", "Sketch022")
sketch23.AttachmentSupport = (doc.getObject("XZ_Plane"), [""])
sketch23.MapMode = "FlatFace"
sketch23.AttachmentOffset = App.Placement(V(0, 0, 29.5), App.Rotation())
add_polygon(sketch23, [(5, 10), (5, -28), (47, -28), (47, 10)])  # lines 0-3
sketch23.addConstraint(Sketcher.Constraint("Vertical", 0))
sketch23.addConstraint(Sketcher.Constraint("Horizontal", 1))
sketch23.addConstraint(Sketcher.Constraint("Vertical", 2))
sketch23.addConstraint(Sketcher.Constraint("Horizontal", 3))
sketch23.addConstraint(Sketcher.Constraint("DistanceX", 1, 1, 1, 2, 42.0))
sketch23.addConstraint(Sketcher.Constraint("DistanceY", 0, 2, 0, 1, 38.0))
sketch23.addConstraint(Sketcher.Constraint("DistanceX", -1, 1, 0, 2, 5.0))
sketch23.addConstraint(Sketcher.Constraint("DistanceY", 0, 2, -1, 1, 28.0))
pocket15 = body.newObject("PartDesign::Pocket", "Pocket014")
pocket15.Profile = sketch23
pocket15.Length = 7

# Sketch on XZ plane
sketch24 = body.newObject("Sketcher::SketchObject", "Sketch023")
sketch24.AttachmentSupport = (doc.getObject("XZ_Plane"), [""])
sketch24.MapMode = "FlatFace"
sketch24.AttachmentOffset = App.Placement(V(0, 0, 61.15), App.Rotation())
add_polygon(sketch24, [(5, -28), (5, 10), (47, 10), (47, -28)])  # lines 0-3
sketch24.addConstraint(Sketcher.Constraint("Vertical", 0))
sketch24.addConstraint(Sketcher.Constraint("Horizontal", 1))
sketch24.addConstraint(Sketcher.Constraint("Vertical", 2))
sketch24.addConstraint(Sketcher.Constraint("Horizontal", 3))
sketch24.addConstraint(Sketcher.Constraint("DistanceX", 1, 1, 1, 2, 42.0))
sketch24.addConstraint(Sketcher.Constraint("DistanceY", 0, 1, 0, 2, 38.0))
sketch24.addConstraint(Sketcher.Constraint("DistanceX", -1, 1, 0, 2, 5.0))
sketch24.addConstraint(Sketcher.Constraint("DistanceY", -1, 1, 0, 2, 10.0))
pocket16 = body.newObject("PartDesign::Pocket", "Pocket015")
pocket16.Profile = sketch24
pocket16.Length = 7
pocket16.Reversed = True

# Sketch on YZ plane
sketch25 = body.newObject("Sketcher::SketchObject", "Sketch024")
sketch25.AttachmentSupport = (doc.getObject("YZ_Plane"), [""])
sketch25.MapMode = "FlatFace"
sketch25.AttachmentOffset = App.Placement(V(0, 0, 5), App.Rotation())
add_polygon(sketch25, [(-22, 10), (-68, 10), (-68, -28), (-22, -28)])  # lines 0-3
sketch25.addConstraint(Sketcher.Constraint("Horizontal", 0))
sketch25.addConstraint(Sketcher.Constraint("Vertical", 1))
sketch25.addConstraint(Sketcher.Constraint("Horizontal", 2))
sketch25.addConstraint(Sketcher.Constraint("Vertical", 3))
sketch25.addConstraint(Sketcher.Constraint("DistanceY", 1, 2, 1, 1, 38.0))
sketch25.addConstraint(Sketcher.Constraint("DistanceY", -1, 1, 0, 2, 10.0))
sketch25.addConstraint(Sketcher.Constraint("DistanceX", 0, 2, 0, 1, 45.65))
sketch25.addConstraint(Sketcher.Constraint("DistanceX", 2, 2, -1, 1, 22.5))
pocket17 = body.newObject("PartDesign::Pocket", "Pocket016")
pocket17.Profile = sketch25
pocket17.Length = 7

# Sketch on YZ plane
sketch26 = body.newObject("Sketcher::SketchObject", "Sketch025")
sketch26.AttachmentSupport = (doc.getObject("YZ_Plane"), [""])
sketch26.MapMode = "FlatFace"
sketch26.AttachmentOffset = App.Placement(V(0, 0, 50), App.Rotation())
add_polygon(sketch26, [(-82, 10), (-88, 10), (-88, -36), (-82, -36)])  # lines 0-3
sketch26.addConstraint(Sketcher.Constraint("Horizontal", 0))
sketch26.addConstraint(Sketcher.Constraint("Vertical", 1))
sketch26.addConstraint(Sketcher.Constraint("Horizontal", 2))
sketch26.addConstraint(Sketcher.Constraint("Vertical", 3))
sketch26.addConstraint(Sketcher.Constraint("DistanceX", 0, 2, 0, 1, 6.0))
sketch26.addConstraint(Sketcher.Constraint("DistanceY", 1, 2, 1, 1, 46.5))
sketch26.addConstraint(Sketcher.Constraint("DistanceY", -1, 1, 0, 2, 10.0))
sketch26.addConstraint(Sketcher.Constraint("DistanceX", 0, 2, -1, 1, 88.5))
pocket18 = body.newObject("PartDesign::Pocket", "Pocket017")
pocket18.Profile = sketch26
pocket18.Type = "ThroughAll"

# Sketch on YZ plane
sketch27 = body.newObject("Sketcher::SketchObject", "Sketch026")
sketch27.AttachmentSupport = (doc.getObject("YZ_Plane"), [""])
sketch27.MapMode = "FlatFace"
sketch27.AttachmentOffset = App.Placement(V(0, 0, 50), App.Rotation())
sketch27.addGeometry(Part.ArcOfCircle(Part.Circle(V(-22.5, -31.5, 0), V(0, 0, 1), 5), math.radians(-90), math.radians(0)), False)
sketch27.addGeometry(Part.LineSegment(V(-17.5, -31.5, 0), V(-17.5, -29.5, 0)), False)
sketch27.addGeometry(Part.LineSegment(V(-17.5, -29.5, 0), V(-24.5, -29.5, 0)), False)
sketch27.addGeometry(Part.LineSegment(V(-24.5, -29.5, 0), V(-24.5, -36.5, 0)), False)
sketch27.addGeometry(Part.LineSegment(V(-24.5, -36.5, 0), V(-22.5, -36.5, 0)), False)
sketch27.addConstraint(Sketcher.Constraint("Tangent", 0, 2, 1, 1))
sketch27.addConstraint(Sketcher.Constraint("Coincident", 1, 2, 2, 1))
sketch27.addConstraint(Sketcher.Constraint("Coincident", 2, 2, 3, 1))
sketch27.addConstraint(Sketcher.Constraint("Coincident", 3, 2, 4, 1))
sketch27.addConstraint(Sketcher.Constraint("Tangent", 4, 2, 0, 1))
sketch27.addConstraint(Sketcher.Constraint("Vertical", 1))
sketch27.addConstraint(Sketcher.Constraint("Horizontal", 2))
sketch27.addConstraint(Sketcher.Constraint("Vertical", 3))
sketch27.addConstraint(Sketcher.Constraint("Horizontal", 4))
sketch27.addConstraint(Sketcher.Constraint("Equal", 4, 1))
sketch27.addConstraint(Sketcher.Constraint("Radius", 0, 5.0))
sketch27.addConstraint(Sketcher.Constraint("DistanceX", 2, 2, 2, 1, 7.0))
sketch27.addConstraint(Sketcher.Constraint("DistanceX", 0, 3, -1, 1, 22.5))
sketch27.addConstraint(Sketcher.Constraint("DistanceY", 0, 3, -1, 1, 31.5))
pocket19 = body.newObject("PartDesign::Pocket", "Pocket018")
pocket19.Profile = sketch27
pocket19.Type = "ThroughAll"

# Sketch on YZ plane
sketch28 = body.newObject("Sketcher::SketchObject", "Sketch027")
sketch28.AttachmentSupport = (doc.getObject("YZ_Plane"), [""])
sketch28.MapMode = "FlatFace"
sketch28.AttachmentOffset = App.Placement(V(0, 0, 50), App.Rotation())
sketch28.addGeometry(Part.Circle(V(-22.8, -27.8, 0), V(0, 0, 1), 0.9), False)
sketch28.addGeometry(Part.Circle(V(-26.2, -31.2, 0), V(0, 0, 1), 0.9), False)
sketch28.addConstraint(Sketcher.Constraint("Equal", 0, 1))
sketch28.addConstraint(Sketcher.Constraint("Diameter", 0, 1.8))
sketch28.addConstraint(Sketcher.Constraint("DistanceX", 1, 3, 0, 3, 3.5))
sketch28.addConstraint(Sketcher.Constraint("DistanceY", 1, 3, 0, 3, 3.5))
sketch28.addConstraint(Sketcher.Constraint("DistanceX", 0, 3, -1, 1, 22.75))
sketch28.addConstraint(Sketcher.Constraint("DistanceY", 0, 3, -1, 1, 27.75))
pocket20 = body.newObject("PartDesign::Pocket", "Pocket019")
pocket20.Profile = sketch28
pocket20.Length = 6

doc.recompute()
